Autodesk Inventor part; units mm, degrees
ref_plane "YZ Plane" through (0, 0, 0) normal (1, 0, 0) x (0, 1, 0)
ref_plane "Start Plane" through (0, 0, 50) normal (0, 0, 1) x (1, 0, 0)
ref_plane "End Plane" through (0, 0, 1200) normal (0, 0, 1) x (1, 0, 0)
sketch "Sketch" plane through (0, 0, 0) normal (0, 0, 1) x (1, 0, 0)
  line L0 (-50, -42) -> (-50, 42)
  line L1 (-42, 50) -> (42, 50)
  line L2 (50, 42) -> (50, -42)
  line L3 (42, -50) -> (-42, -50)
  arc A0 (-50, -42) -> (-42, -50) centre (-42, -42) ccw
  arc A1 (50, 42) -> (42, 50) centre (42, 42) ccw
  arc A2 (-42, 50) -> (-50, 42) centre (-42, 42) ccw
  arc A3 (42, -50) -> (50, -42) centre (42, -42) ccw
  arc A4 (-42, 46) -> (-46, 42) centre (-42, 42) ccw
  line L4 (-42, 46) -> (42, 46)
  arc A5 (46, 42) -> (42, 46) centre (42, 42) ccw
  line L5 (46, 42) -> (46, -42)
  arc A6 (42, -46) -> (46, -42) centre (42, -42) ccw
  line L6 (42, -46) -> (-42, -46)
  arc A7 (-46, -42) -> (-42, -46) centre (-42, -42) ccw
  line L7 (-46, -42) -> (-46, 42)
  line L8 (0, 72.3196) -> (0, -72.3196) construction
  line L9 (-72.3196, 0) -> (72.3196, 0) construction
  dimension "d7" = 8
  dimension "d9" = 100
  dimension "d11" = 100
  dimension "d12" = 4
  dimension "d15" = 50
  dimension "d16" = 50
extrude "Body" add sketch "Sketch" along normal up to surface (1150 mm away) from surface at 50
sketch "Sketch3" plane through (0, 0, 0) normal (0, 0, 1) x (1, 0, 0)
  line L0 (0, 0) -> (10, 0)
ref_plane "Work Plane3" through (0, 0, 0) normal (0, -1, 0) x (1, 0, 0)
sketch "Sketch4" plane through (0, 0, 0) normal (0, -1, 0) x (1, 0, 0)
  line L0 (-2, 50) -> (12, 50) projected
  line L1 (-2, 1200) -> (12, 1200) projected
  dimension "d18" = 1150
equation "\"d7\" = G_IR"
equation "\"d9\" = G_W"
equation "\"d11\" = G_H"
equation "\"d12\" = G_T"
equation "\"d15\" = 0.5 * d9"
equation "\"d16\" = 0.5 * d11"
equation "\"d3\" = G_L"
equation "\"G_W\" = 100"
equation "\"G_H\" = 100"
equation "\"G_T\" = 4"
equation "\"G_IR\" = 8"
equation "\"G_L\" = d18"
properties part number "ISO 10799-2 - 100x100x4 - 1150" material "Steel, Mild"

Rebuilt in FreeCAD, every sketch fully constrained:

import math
import FreeCAD as App
import Part
import Sketcher
from FreeCAD import Vector

doc = App.newDocument("Part")
body = doc.addObject("PartDesign::Body", "Body")

# Sketch on XY plane
sketch1 = body.newObject("Sketcher::SketchObject", "Sketch")
sketch1.AttachmentSupport = (doc.getObject("XY_Plane"), [""])
sketch1.MapMode = "FlatFace"
sketch1.AttachmentOffset = App.Placement(Vector(0, 0, 50), App.Rotation())
sketch1.addGeometry([
    Part.LineSegment(Vector(-50, 42, 0), Vector(-50, -42, 0)),  # 0
    Part.ArcOfCircle(Part.Circle(Vector(-42, -42, 0), Vector(0, 0, 1), 8), math.radians(180), math.radians(270)),  # 1
    Part.LineSegment(Vector(-42, -50, 0), Vector(42, -50, 0)),  # 2
    Part.ArcOfCircle(Part.Circle(Vector(42, -42, 0), Vector(0, 0, 1), 8), math.radians(-90), math.radians(0)),  # 3
    Part.LineSegment(Vector(50, -42, 0), Vector(50, 42, 0)),  # 4
    Part.ArcOfCircle(Part.Circle(Vector(42, 42, 0), Vector(0, 0, 1), 8), math.radians(0), math.radians(90)),  # 5
    Part.LineSegment(Vector(42, 50, 0), Vector(-42, 50, 0)),  # 6
    Part.ArcOfCircle(Part.Circle(Vector(-42, 42, 0), Vector(0, 0, 1), 8), math.radians(90), math.radians(180)),  # 7
    Part.ArcOfCircle(Part.Circle(Vector(-42, 42, 0), Vector(0, 0, 1), 4), math.radians(90), math.radians(180)),  # 8
    Part.LineSegment(Vector(-42, 46, 0), Vector(42, 46, 0)),  # 9
    Part.ArcOfCircle(Part.Circle(Vector(42, 42, 0), Vector(0, 0, 1), 4), math.radians(0), math.radians(90)),  # 10
    Part.LineSegment(Vector(46, 42, 0), Vector(46, -42, 0)),  # 11
    Part.ArcOfCircle(Part.Circle(Vector(42, -42, 0), Vector(0, 0, 1), 4), math.radians(-90), math.radians(0)),  # 12
    Part.LineSegment(Vector(42, -46, 0), Vector(-42, -46, 0)),  # 13
    Part.ArcOfCircle(Part.Circle(Vector(-42, -42, 0), Vector(0, 0, 1), 4), math.radians(180), math.radians(270)),  # 14
    Part.LineSegment(Vector(-46, -42, 0), Vector(-46, 42, 0)),  # 15
], False)
sketch1.addConstraint([
    Sketcher.Constraint("Tangent", 0, 2, 1, 1),
    Sketcher.Constraint("Tangent", 1, 2, 2, 1),
    Sketcher.Constraint("Tangent", 2, 2, 3, 1),
    Sketcher.Constraint("Tangent", 3, 2, 4, 1),
    Sketcher.Constraint("Tangent", 4, 2, 5, 1),
    Sketcher.Constraint("Tangent", 5, 2, 6, 1),
    Sketcher.Constraint("Tangent", 6, 2, 7, 1),
    Sketcher.Constraint("Tangent", 7, 2, 0, 1),
    Sketcher.Constraint("Tangent", 8, 1, 9, 1),
    Sketcher.Constraint("Tangent", 9, 2, 10, 2),
    Sketcher.Constraint("Tangent", 10, 1, 11, 1),
    Sketcher.Constraint("Tangent", 11, 2, 12, 2),
    Sketcher.Constraint("Tangent", 12, 1, 13, 1),
    Sketcher.Constraint("Tangent", 13, 2, 14, 2),
    Sketcher.Constraint("Tangent", 14, 1, 15, 1),
    Sketcher.Constraint("Tangent", 15, 2, 8, 2),
    Sketcher.Constraint("Vertical", 0),
    Sketcher.Constraint("Horizontal", 2),
    Sketcher.Constraint("Vertical", 4),
    Sketcher.Constraint("Horizontal", 6),
    Sketcher.Constraint("Horizontal", 9),
    Sketcher.Constraint("Vertical", 11),
    Sketcher.Constraint("Horizontal", 13),
    Sketcher.Constraint("Vertical", 15),
    Sketcher.Constraint("Coincident", 8, 3, 7, 3),
    Sketcher.Constraint("Coincident", 10, 3, 5, 3),
    Sketcher.Constraint("Coincident", 12, 3, 3, 3),
    Sketcher.Constraint("Equal", 1, 3),
    Sketcher.Constraint("Equal", 3, 5),
    Sketcher.Constraint("Equal", 5, 7),
    Sketcher.Constraint("Equal", 12, 14),
    Sketcher.Constraint("Symmetric", 1, 3, 5, 3, -1, 1),
    Sketcher.Constraint("Equal", 13, 0),
    Sketcher.Constraint("Radius", 1, 8.0),
    Sketcher.Constraint("Radius", 8, 4.0),
    Sketcher.Constraint("DistanceX", 0, 2, -1, 1, 50.0),
])
pad1 = body.newObject("PartDesign::Pad", "Pad")
pad1.Profile = sketch1
pad1.Length = 1150

doc.recompute()
